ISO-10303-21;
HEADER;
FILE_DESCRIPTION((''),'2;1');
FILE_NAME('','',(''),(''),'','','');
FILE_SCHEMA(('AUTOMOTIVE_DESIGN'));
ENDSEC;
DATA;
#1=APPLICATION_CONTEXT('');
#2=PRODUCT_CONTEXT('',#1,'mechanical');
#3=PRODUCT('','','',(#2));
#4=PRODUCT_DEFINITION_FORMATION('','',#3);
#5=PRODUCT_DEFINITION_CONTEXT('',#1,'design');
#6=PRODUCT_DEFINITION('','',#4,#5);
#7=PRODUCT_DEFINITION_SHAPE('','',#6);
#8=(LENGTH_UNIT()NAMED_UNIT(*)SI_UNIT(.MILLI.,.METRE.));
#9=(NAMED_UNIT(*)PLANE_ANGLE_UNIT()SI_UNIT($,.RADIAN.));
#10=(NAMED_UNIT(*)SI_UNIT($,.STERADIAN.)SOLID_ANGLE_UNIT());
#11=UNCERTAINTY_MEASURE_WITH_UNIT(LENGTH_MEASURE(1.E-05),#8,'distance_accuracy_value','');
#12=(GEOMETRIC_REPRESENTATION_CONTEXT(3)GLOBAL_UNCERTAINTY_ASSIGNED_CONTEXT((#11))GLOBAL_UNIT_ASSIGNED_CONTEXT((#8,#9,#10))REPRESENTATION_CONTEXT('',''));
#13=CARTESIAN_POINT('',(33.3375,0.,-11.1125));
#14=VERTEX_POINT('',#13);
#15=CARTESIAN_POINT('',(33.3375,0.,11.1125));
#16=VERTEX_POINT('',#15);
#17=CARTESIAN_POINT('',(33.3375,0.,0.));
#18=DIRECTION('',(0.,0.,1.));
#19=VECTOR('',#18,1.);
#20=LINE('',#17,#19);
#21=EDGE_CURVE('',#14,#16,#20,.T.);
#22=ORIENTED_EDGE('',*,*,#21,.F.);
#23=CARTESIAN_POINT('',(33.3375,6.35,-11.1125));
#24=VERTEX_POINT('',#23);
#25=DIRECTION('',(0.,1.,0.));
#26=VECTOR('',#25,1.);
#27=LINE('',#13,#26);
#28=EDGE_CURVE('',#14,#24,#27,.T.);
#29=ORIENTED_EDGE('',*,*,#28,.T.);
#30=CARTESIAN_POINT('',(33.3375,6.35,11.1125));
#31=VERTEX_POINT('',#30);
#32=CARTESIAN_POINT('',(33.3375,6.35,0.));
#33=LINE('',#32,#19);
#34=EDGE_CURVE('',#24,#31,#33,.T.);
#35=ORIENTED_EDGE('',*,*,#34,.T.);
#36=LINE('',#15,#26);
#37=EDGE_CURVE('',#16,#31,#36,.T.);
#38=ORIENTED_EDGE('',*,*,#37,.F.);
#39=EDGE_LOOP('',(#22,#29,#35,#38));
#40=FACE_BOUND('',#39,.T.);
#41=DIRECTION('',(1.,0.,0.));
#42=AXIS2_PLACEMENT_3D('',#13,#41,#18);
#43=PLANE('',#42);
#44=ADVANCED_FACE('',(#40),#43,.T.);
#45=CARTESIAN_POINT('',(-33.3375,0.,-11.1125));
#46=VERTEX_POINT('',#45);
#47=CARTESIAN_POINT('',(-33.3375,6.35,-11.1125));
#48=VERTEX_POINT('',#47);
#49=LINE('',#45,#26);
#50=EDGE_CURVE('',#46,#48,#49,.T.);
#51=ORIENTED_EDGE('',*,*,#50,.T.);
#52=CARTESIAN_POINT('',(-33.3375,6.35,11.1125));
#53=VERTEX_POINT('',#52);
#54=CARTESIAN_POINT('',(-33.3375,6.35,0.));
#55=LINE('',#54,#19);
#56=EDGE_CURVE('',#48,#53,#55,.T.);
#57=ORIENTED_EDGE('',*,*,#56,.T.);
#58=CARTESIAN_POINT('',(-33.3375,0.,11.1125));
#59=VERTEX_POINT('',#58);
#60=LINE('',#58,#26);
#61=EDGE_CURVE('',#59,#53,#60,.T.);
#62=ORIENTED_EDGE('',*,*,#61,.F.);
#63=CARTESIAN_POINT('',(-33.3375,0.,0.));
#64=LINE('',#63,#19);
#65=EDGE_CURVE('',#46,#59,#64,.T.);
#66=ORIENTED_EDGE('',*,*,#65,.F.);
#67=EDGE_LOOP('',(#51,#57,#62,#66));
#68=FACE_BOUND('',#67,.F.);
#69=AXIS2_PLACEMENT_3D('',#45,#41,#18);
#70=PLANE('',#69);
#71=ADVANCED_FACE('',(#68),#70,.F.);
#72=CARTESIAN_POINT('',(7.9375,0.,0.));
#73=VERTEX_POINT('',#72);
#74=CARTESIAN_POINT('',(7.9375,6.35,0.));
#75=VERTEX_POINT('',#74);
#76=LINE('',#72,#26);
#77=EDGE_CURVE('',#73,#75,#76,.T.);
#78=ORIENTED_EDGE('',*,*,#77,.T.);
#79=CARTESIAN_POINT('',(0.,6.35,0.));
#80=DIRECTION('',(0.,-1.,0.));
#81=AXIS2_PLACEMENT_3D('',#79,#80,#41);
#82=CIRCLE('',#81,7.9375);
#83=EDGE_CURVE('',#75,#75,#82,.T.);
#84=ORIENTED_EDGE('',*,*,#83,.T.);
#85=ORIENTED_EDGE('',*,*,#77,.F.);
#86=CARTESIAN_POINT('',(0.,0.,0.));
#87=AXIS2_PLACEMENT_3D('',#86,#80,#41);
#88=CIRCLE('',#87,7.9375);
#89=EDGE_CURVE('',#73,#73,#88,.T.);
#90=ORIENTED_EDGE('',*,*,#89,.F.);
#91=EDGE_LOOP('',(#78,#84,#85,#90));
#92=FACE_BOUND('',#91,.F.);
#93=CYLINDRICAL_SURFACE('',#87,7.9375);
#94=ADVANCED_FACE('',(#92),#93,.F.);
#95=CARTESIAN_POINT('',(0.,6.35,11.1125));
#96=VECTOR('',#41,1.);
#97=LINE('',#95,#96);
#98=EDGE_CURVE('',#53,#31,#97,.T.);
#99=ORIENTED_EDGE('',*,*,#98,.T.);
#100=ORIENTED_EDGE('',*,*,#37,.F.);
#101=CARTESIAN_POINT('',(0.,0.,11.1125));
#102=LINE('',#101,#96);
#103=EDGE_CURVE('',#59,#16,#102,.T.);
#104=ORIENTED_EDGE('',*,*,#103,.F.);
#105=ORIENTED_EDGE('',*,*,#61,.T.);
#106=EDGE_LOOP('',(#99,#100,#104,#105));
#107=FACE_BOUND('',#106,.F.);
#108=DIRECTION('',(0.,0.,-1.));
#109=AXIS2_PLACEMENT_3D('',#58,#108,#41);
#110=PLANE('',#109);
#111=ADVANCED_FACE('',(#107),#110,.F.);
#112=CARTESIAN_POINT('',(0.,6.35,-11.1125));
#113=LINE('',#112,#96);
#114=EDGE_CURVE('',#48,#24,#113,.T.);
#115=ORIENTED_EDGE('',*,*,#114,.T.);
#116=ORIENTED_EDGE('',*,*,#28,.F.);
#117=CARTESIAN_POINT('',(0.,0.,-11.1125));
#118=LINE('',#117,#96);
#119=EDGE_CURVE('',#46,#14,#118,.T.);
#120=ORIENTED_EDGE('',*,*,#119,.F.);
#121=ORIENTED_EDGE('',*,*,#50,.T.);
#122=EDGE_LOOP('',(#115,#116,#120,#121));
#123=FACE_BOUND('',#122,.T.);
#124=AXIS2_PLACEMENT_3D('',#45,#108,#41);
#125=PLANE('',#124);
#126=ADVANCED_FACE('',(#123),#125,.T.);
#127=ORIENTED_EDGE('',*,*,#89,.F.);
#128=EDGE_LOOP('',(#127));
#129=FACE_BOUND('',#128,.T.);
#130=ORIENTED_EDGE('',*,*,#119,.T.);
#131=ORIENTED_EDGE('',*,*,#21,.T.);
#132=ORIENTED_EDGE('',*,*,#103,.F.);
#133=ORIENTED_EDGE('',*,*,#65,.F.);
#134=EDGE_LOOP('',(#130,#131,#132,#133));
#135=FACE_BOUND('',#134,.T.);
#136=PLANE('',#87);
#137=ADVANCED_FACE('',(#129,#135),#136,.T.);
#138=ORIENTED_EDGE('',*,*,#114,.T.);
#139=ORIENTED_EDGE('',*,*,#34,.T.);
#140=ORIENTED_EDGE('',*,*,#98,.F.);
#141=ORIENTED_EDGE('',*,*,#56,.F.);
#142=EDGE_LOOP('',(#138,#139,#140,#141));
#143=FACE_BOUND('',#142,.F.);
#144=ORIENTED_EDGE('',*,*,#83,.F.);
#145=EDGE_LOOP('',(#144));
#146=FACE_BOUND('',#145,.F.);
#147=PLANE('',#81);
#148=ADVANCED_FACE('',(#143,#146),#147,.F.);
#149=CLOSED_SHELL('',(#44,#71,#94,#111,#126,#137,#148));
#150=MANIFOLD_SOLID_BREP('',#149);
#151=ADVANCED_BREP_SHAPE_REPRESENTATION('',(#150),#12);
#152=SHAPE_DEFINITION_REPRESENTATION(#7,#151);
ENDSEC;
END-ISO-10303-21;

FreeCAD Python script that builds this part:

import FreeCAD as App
import Part
import Sketcher
Q = App.Units.Quantity


def add_polygon(sketch, points):
    """Adds a closed chain of lines whose ends are joined by coincident constraints."""
    first, n = sketch.GeometryCount, len(points)
    for a, b in zip(points, points[1:] + points[:1]):
        sketch.addGeometry(Part.LineSegment(App.Vector(*a, 0), App.Vector(*b, 0)), False)
    for i in range(n):
        sketch.addConstraint(Sketcher.Constraint("Coincident", first + i, 2, first + (i + 1) % n, 1))

doc = App.newDocument("Part")
body = doc.addObject("PartDesign::Body", "Body")

# Sketch on XZ plane
sketch1 = doc.addObject("Sketcher::SketchObject", "Sketch")
body.addObject(sketch1)
sketch1.AttachmentSupport = (doc.XZ_Plane, [""])
sketch1.MapMode = "FlatFace"
add_polygon(sketch1, [(-33.3375, 11.1125), (-33.3375, -11.1125), (33.3375, -11.1125), (33.3375, 11.1125)])  # lines 0-3
sketch1.addGeometry(Part.Circle(App.Vector(0, 0, 0), App.Vector(0, 0, 1), 7.9375), False)  # 4
sketch1.addConstraint([
    Sketcher.Constraint("Vertical", 0),
    Sketcher.Constraint("Horizontal", 1),
    Sketcher.Constraint("Vertical", 2),
    Sketcher.Constraint("Horizontal", 3),
    Sketcher.Constraint("Coincident", 4, 3, -1, 1),
    Sketcher.Constraint("Symmetric", 0, 2, 2, 2, -1, 1),
    Sketcher.Constraint("Diameter", 4, Q("0.625 in")),
    Sketcher.Constraint("DistanceX", 1, 1, 1, 2, Q("2.625 in")),
    Sketcher.Constraint("DistanceY", 0, 2, 0, 1, Q("0.875 in")),
])
pad1 = doc.addObject("PartDesign::Pad", "Pad")
body.addObject(pad1)
pad1.Profile = sketch1
pad1.Length = Q("0.25 in")
pad1.Reversed = True

doc.recompute()
